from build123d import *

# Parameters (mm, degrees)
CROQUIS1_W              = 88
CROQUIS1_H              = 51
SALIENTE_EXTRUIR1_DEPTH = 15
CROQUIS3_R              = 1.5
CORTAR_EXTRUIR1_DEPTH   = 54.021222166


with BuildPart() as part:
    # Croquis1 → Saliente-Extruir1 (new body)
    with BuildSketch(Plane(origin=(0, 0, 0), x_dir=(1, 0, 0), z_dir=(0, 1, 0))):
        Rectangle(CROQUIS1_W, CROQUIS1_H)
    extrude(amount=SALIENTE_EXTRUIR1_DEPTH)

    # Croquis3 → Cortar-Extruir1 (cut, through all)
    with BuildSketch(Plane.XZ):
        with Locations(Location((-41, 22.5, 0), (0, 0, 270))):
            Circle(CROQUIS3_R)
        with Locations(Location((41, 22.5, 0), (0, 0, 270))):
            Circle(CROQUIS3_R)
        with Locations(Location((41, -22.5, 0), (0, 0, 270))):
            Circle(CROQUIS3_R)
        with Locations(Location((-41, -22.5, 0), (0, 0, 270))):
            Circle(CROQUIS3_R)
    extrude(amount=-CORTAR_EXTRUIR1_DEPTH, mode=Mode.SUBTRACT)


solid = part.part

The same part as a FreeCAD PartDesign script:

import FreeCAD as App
import Part
import Sketcher

V = App.Vector

doc = App.newDocument("Part")
params = doc.addObject("Spreadsheet::Sheet", "Params")
for row, (alias, value) in enumerate([
    ("sketch1_width", "88 mm"),
    ("sketch1_height", "51 mm"),
    ("pad1_length", "15 mm"),
    ("sketch2_diameter", "3 mm"),
], start=1):
    params.set(f"A{row}", alias)
    params.set(f"B{row}", "=" + value)
    params.setAlias(f"B{row}", alias)

body = doc.addObject("PartDesign::Body", "Body")

sketch1 = body.newObject("Sketcher::SketchObject", "Sketch")
sketch1.AttachmentSupport = (doc.getObject("XZ_Plane"), [""])
sketch1.MapMode = "FlatFace"
sketch1.addGeometry([
    Part.LineSegment(V(-44, -26, 0), V(-44, 26, 0)),
    Part.LineSegment(V(-44, 26, 0), V(44, 26, 0)),
    Part.LineSegment(V(44, 26, 0), V(44, -26, 0)),
    Part.LineSegment(V(44, -26, 0), V(-44, -26, 0)),
], False)
sketch1.addConstraint([
    Sketcher.Constraint("Coincident", 0, 2, 1, 1),
    Sketcher.Constraint("Coincident", 1, 2, 2, 1),
    Sketcher.Constraint("Coincident", 2, 2, 3, 1),
    Sketcher.Constraint("Coincident", 3, 2, 0, 1),
    Sketcher.Constraint("Vertical", 0),
    Sketcher.Constraint("Horizontal", 1),
    Sketcher.Constraint("Vertical", 2),
    Sketcher.Constraint("Horizontal", 3),
    Sketcher.Constraint("Symmetric", 0, 2, 2, 2, -1, 1),
    Sketcher.Constraint("DistanceX", 1, 1, 1, 2, 88.0),
    Sketcher.Constraint("DistanceY", 0, 1, 0, 2, 51.0),
])
sketch1.setExpression("Constraints[9]", "Params.sketch1_width")
sketch1.setExpression("Constraints[10]", "Params.sketch1_height")
pad1 = body.newObject("PartDesign::Pad", "Pad")
pad1.Profile = sketch1
pad1.setExpression("Length", "Params.pad1_length")
pad1.Reversed = True

sketch2 = body.newObject("Sketcher::SketchObject", "Sketch001")
sketch2.AttachmentSupport = (doc.getObject("XZ_Plane"), [""])
sketch2.MapMode = "FlatFace"
sketch2.addGeometry([
    Part.Circle(V(-41, 22.5, 0), V(0, 0, 1), 1.5),
    Part.Circle(V(41, 22.5, 0), V(0, 0, 1), 1.5),
    Part.Circle(V(41, -22.5, 0), V(0, 0, 1), 1.5),
    Part.Circle(V(-41, -22.5, 0), V(0, 0, 1), 1.5),
], False)
sketch2.addConstraint([
    Sketcher.Constraint("Equal", 0, 1),
    Sketcher.Constraint("Equal", 1, 2),
    Sketcher.Constraint("Equal", 2, 3),
    Sketcher.Constraint("Symmetric", 0, 3, 2, 3, -1, 1),
    Sketcher.Constraint("Symmetric", 1, 3, 3, 3, -1, 1),
    Sketcher.Constraint("Symmetric", 0, 3, 1, 3, -2),
    Sketcher.Constraint("Diameter", 0, 3.0),
    Sketcher.Constraint("DistanceX", 0, 3, -1, 1, 41.0),
    Sketcher.Constraint("DistanceY", 2, 3, 1, 3, 45.0),
])
sketch2.setExpression("Constraints[6]", "Params.sketch2_diameter")
pocket1 = body.newObject("PartDesign::Pocket", "Pocket")
pocket1.Profile = sketch2
pocket1.Type = "ThroughAll"

doc.recompute()
